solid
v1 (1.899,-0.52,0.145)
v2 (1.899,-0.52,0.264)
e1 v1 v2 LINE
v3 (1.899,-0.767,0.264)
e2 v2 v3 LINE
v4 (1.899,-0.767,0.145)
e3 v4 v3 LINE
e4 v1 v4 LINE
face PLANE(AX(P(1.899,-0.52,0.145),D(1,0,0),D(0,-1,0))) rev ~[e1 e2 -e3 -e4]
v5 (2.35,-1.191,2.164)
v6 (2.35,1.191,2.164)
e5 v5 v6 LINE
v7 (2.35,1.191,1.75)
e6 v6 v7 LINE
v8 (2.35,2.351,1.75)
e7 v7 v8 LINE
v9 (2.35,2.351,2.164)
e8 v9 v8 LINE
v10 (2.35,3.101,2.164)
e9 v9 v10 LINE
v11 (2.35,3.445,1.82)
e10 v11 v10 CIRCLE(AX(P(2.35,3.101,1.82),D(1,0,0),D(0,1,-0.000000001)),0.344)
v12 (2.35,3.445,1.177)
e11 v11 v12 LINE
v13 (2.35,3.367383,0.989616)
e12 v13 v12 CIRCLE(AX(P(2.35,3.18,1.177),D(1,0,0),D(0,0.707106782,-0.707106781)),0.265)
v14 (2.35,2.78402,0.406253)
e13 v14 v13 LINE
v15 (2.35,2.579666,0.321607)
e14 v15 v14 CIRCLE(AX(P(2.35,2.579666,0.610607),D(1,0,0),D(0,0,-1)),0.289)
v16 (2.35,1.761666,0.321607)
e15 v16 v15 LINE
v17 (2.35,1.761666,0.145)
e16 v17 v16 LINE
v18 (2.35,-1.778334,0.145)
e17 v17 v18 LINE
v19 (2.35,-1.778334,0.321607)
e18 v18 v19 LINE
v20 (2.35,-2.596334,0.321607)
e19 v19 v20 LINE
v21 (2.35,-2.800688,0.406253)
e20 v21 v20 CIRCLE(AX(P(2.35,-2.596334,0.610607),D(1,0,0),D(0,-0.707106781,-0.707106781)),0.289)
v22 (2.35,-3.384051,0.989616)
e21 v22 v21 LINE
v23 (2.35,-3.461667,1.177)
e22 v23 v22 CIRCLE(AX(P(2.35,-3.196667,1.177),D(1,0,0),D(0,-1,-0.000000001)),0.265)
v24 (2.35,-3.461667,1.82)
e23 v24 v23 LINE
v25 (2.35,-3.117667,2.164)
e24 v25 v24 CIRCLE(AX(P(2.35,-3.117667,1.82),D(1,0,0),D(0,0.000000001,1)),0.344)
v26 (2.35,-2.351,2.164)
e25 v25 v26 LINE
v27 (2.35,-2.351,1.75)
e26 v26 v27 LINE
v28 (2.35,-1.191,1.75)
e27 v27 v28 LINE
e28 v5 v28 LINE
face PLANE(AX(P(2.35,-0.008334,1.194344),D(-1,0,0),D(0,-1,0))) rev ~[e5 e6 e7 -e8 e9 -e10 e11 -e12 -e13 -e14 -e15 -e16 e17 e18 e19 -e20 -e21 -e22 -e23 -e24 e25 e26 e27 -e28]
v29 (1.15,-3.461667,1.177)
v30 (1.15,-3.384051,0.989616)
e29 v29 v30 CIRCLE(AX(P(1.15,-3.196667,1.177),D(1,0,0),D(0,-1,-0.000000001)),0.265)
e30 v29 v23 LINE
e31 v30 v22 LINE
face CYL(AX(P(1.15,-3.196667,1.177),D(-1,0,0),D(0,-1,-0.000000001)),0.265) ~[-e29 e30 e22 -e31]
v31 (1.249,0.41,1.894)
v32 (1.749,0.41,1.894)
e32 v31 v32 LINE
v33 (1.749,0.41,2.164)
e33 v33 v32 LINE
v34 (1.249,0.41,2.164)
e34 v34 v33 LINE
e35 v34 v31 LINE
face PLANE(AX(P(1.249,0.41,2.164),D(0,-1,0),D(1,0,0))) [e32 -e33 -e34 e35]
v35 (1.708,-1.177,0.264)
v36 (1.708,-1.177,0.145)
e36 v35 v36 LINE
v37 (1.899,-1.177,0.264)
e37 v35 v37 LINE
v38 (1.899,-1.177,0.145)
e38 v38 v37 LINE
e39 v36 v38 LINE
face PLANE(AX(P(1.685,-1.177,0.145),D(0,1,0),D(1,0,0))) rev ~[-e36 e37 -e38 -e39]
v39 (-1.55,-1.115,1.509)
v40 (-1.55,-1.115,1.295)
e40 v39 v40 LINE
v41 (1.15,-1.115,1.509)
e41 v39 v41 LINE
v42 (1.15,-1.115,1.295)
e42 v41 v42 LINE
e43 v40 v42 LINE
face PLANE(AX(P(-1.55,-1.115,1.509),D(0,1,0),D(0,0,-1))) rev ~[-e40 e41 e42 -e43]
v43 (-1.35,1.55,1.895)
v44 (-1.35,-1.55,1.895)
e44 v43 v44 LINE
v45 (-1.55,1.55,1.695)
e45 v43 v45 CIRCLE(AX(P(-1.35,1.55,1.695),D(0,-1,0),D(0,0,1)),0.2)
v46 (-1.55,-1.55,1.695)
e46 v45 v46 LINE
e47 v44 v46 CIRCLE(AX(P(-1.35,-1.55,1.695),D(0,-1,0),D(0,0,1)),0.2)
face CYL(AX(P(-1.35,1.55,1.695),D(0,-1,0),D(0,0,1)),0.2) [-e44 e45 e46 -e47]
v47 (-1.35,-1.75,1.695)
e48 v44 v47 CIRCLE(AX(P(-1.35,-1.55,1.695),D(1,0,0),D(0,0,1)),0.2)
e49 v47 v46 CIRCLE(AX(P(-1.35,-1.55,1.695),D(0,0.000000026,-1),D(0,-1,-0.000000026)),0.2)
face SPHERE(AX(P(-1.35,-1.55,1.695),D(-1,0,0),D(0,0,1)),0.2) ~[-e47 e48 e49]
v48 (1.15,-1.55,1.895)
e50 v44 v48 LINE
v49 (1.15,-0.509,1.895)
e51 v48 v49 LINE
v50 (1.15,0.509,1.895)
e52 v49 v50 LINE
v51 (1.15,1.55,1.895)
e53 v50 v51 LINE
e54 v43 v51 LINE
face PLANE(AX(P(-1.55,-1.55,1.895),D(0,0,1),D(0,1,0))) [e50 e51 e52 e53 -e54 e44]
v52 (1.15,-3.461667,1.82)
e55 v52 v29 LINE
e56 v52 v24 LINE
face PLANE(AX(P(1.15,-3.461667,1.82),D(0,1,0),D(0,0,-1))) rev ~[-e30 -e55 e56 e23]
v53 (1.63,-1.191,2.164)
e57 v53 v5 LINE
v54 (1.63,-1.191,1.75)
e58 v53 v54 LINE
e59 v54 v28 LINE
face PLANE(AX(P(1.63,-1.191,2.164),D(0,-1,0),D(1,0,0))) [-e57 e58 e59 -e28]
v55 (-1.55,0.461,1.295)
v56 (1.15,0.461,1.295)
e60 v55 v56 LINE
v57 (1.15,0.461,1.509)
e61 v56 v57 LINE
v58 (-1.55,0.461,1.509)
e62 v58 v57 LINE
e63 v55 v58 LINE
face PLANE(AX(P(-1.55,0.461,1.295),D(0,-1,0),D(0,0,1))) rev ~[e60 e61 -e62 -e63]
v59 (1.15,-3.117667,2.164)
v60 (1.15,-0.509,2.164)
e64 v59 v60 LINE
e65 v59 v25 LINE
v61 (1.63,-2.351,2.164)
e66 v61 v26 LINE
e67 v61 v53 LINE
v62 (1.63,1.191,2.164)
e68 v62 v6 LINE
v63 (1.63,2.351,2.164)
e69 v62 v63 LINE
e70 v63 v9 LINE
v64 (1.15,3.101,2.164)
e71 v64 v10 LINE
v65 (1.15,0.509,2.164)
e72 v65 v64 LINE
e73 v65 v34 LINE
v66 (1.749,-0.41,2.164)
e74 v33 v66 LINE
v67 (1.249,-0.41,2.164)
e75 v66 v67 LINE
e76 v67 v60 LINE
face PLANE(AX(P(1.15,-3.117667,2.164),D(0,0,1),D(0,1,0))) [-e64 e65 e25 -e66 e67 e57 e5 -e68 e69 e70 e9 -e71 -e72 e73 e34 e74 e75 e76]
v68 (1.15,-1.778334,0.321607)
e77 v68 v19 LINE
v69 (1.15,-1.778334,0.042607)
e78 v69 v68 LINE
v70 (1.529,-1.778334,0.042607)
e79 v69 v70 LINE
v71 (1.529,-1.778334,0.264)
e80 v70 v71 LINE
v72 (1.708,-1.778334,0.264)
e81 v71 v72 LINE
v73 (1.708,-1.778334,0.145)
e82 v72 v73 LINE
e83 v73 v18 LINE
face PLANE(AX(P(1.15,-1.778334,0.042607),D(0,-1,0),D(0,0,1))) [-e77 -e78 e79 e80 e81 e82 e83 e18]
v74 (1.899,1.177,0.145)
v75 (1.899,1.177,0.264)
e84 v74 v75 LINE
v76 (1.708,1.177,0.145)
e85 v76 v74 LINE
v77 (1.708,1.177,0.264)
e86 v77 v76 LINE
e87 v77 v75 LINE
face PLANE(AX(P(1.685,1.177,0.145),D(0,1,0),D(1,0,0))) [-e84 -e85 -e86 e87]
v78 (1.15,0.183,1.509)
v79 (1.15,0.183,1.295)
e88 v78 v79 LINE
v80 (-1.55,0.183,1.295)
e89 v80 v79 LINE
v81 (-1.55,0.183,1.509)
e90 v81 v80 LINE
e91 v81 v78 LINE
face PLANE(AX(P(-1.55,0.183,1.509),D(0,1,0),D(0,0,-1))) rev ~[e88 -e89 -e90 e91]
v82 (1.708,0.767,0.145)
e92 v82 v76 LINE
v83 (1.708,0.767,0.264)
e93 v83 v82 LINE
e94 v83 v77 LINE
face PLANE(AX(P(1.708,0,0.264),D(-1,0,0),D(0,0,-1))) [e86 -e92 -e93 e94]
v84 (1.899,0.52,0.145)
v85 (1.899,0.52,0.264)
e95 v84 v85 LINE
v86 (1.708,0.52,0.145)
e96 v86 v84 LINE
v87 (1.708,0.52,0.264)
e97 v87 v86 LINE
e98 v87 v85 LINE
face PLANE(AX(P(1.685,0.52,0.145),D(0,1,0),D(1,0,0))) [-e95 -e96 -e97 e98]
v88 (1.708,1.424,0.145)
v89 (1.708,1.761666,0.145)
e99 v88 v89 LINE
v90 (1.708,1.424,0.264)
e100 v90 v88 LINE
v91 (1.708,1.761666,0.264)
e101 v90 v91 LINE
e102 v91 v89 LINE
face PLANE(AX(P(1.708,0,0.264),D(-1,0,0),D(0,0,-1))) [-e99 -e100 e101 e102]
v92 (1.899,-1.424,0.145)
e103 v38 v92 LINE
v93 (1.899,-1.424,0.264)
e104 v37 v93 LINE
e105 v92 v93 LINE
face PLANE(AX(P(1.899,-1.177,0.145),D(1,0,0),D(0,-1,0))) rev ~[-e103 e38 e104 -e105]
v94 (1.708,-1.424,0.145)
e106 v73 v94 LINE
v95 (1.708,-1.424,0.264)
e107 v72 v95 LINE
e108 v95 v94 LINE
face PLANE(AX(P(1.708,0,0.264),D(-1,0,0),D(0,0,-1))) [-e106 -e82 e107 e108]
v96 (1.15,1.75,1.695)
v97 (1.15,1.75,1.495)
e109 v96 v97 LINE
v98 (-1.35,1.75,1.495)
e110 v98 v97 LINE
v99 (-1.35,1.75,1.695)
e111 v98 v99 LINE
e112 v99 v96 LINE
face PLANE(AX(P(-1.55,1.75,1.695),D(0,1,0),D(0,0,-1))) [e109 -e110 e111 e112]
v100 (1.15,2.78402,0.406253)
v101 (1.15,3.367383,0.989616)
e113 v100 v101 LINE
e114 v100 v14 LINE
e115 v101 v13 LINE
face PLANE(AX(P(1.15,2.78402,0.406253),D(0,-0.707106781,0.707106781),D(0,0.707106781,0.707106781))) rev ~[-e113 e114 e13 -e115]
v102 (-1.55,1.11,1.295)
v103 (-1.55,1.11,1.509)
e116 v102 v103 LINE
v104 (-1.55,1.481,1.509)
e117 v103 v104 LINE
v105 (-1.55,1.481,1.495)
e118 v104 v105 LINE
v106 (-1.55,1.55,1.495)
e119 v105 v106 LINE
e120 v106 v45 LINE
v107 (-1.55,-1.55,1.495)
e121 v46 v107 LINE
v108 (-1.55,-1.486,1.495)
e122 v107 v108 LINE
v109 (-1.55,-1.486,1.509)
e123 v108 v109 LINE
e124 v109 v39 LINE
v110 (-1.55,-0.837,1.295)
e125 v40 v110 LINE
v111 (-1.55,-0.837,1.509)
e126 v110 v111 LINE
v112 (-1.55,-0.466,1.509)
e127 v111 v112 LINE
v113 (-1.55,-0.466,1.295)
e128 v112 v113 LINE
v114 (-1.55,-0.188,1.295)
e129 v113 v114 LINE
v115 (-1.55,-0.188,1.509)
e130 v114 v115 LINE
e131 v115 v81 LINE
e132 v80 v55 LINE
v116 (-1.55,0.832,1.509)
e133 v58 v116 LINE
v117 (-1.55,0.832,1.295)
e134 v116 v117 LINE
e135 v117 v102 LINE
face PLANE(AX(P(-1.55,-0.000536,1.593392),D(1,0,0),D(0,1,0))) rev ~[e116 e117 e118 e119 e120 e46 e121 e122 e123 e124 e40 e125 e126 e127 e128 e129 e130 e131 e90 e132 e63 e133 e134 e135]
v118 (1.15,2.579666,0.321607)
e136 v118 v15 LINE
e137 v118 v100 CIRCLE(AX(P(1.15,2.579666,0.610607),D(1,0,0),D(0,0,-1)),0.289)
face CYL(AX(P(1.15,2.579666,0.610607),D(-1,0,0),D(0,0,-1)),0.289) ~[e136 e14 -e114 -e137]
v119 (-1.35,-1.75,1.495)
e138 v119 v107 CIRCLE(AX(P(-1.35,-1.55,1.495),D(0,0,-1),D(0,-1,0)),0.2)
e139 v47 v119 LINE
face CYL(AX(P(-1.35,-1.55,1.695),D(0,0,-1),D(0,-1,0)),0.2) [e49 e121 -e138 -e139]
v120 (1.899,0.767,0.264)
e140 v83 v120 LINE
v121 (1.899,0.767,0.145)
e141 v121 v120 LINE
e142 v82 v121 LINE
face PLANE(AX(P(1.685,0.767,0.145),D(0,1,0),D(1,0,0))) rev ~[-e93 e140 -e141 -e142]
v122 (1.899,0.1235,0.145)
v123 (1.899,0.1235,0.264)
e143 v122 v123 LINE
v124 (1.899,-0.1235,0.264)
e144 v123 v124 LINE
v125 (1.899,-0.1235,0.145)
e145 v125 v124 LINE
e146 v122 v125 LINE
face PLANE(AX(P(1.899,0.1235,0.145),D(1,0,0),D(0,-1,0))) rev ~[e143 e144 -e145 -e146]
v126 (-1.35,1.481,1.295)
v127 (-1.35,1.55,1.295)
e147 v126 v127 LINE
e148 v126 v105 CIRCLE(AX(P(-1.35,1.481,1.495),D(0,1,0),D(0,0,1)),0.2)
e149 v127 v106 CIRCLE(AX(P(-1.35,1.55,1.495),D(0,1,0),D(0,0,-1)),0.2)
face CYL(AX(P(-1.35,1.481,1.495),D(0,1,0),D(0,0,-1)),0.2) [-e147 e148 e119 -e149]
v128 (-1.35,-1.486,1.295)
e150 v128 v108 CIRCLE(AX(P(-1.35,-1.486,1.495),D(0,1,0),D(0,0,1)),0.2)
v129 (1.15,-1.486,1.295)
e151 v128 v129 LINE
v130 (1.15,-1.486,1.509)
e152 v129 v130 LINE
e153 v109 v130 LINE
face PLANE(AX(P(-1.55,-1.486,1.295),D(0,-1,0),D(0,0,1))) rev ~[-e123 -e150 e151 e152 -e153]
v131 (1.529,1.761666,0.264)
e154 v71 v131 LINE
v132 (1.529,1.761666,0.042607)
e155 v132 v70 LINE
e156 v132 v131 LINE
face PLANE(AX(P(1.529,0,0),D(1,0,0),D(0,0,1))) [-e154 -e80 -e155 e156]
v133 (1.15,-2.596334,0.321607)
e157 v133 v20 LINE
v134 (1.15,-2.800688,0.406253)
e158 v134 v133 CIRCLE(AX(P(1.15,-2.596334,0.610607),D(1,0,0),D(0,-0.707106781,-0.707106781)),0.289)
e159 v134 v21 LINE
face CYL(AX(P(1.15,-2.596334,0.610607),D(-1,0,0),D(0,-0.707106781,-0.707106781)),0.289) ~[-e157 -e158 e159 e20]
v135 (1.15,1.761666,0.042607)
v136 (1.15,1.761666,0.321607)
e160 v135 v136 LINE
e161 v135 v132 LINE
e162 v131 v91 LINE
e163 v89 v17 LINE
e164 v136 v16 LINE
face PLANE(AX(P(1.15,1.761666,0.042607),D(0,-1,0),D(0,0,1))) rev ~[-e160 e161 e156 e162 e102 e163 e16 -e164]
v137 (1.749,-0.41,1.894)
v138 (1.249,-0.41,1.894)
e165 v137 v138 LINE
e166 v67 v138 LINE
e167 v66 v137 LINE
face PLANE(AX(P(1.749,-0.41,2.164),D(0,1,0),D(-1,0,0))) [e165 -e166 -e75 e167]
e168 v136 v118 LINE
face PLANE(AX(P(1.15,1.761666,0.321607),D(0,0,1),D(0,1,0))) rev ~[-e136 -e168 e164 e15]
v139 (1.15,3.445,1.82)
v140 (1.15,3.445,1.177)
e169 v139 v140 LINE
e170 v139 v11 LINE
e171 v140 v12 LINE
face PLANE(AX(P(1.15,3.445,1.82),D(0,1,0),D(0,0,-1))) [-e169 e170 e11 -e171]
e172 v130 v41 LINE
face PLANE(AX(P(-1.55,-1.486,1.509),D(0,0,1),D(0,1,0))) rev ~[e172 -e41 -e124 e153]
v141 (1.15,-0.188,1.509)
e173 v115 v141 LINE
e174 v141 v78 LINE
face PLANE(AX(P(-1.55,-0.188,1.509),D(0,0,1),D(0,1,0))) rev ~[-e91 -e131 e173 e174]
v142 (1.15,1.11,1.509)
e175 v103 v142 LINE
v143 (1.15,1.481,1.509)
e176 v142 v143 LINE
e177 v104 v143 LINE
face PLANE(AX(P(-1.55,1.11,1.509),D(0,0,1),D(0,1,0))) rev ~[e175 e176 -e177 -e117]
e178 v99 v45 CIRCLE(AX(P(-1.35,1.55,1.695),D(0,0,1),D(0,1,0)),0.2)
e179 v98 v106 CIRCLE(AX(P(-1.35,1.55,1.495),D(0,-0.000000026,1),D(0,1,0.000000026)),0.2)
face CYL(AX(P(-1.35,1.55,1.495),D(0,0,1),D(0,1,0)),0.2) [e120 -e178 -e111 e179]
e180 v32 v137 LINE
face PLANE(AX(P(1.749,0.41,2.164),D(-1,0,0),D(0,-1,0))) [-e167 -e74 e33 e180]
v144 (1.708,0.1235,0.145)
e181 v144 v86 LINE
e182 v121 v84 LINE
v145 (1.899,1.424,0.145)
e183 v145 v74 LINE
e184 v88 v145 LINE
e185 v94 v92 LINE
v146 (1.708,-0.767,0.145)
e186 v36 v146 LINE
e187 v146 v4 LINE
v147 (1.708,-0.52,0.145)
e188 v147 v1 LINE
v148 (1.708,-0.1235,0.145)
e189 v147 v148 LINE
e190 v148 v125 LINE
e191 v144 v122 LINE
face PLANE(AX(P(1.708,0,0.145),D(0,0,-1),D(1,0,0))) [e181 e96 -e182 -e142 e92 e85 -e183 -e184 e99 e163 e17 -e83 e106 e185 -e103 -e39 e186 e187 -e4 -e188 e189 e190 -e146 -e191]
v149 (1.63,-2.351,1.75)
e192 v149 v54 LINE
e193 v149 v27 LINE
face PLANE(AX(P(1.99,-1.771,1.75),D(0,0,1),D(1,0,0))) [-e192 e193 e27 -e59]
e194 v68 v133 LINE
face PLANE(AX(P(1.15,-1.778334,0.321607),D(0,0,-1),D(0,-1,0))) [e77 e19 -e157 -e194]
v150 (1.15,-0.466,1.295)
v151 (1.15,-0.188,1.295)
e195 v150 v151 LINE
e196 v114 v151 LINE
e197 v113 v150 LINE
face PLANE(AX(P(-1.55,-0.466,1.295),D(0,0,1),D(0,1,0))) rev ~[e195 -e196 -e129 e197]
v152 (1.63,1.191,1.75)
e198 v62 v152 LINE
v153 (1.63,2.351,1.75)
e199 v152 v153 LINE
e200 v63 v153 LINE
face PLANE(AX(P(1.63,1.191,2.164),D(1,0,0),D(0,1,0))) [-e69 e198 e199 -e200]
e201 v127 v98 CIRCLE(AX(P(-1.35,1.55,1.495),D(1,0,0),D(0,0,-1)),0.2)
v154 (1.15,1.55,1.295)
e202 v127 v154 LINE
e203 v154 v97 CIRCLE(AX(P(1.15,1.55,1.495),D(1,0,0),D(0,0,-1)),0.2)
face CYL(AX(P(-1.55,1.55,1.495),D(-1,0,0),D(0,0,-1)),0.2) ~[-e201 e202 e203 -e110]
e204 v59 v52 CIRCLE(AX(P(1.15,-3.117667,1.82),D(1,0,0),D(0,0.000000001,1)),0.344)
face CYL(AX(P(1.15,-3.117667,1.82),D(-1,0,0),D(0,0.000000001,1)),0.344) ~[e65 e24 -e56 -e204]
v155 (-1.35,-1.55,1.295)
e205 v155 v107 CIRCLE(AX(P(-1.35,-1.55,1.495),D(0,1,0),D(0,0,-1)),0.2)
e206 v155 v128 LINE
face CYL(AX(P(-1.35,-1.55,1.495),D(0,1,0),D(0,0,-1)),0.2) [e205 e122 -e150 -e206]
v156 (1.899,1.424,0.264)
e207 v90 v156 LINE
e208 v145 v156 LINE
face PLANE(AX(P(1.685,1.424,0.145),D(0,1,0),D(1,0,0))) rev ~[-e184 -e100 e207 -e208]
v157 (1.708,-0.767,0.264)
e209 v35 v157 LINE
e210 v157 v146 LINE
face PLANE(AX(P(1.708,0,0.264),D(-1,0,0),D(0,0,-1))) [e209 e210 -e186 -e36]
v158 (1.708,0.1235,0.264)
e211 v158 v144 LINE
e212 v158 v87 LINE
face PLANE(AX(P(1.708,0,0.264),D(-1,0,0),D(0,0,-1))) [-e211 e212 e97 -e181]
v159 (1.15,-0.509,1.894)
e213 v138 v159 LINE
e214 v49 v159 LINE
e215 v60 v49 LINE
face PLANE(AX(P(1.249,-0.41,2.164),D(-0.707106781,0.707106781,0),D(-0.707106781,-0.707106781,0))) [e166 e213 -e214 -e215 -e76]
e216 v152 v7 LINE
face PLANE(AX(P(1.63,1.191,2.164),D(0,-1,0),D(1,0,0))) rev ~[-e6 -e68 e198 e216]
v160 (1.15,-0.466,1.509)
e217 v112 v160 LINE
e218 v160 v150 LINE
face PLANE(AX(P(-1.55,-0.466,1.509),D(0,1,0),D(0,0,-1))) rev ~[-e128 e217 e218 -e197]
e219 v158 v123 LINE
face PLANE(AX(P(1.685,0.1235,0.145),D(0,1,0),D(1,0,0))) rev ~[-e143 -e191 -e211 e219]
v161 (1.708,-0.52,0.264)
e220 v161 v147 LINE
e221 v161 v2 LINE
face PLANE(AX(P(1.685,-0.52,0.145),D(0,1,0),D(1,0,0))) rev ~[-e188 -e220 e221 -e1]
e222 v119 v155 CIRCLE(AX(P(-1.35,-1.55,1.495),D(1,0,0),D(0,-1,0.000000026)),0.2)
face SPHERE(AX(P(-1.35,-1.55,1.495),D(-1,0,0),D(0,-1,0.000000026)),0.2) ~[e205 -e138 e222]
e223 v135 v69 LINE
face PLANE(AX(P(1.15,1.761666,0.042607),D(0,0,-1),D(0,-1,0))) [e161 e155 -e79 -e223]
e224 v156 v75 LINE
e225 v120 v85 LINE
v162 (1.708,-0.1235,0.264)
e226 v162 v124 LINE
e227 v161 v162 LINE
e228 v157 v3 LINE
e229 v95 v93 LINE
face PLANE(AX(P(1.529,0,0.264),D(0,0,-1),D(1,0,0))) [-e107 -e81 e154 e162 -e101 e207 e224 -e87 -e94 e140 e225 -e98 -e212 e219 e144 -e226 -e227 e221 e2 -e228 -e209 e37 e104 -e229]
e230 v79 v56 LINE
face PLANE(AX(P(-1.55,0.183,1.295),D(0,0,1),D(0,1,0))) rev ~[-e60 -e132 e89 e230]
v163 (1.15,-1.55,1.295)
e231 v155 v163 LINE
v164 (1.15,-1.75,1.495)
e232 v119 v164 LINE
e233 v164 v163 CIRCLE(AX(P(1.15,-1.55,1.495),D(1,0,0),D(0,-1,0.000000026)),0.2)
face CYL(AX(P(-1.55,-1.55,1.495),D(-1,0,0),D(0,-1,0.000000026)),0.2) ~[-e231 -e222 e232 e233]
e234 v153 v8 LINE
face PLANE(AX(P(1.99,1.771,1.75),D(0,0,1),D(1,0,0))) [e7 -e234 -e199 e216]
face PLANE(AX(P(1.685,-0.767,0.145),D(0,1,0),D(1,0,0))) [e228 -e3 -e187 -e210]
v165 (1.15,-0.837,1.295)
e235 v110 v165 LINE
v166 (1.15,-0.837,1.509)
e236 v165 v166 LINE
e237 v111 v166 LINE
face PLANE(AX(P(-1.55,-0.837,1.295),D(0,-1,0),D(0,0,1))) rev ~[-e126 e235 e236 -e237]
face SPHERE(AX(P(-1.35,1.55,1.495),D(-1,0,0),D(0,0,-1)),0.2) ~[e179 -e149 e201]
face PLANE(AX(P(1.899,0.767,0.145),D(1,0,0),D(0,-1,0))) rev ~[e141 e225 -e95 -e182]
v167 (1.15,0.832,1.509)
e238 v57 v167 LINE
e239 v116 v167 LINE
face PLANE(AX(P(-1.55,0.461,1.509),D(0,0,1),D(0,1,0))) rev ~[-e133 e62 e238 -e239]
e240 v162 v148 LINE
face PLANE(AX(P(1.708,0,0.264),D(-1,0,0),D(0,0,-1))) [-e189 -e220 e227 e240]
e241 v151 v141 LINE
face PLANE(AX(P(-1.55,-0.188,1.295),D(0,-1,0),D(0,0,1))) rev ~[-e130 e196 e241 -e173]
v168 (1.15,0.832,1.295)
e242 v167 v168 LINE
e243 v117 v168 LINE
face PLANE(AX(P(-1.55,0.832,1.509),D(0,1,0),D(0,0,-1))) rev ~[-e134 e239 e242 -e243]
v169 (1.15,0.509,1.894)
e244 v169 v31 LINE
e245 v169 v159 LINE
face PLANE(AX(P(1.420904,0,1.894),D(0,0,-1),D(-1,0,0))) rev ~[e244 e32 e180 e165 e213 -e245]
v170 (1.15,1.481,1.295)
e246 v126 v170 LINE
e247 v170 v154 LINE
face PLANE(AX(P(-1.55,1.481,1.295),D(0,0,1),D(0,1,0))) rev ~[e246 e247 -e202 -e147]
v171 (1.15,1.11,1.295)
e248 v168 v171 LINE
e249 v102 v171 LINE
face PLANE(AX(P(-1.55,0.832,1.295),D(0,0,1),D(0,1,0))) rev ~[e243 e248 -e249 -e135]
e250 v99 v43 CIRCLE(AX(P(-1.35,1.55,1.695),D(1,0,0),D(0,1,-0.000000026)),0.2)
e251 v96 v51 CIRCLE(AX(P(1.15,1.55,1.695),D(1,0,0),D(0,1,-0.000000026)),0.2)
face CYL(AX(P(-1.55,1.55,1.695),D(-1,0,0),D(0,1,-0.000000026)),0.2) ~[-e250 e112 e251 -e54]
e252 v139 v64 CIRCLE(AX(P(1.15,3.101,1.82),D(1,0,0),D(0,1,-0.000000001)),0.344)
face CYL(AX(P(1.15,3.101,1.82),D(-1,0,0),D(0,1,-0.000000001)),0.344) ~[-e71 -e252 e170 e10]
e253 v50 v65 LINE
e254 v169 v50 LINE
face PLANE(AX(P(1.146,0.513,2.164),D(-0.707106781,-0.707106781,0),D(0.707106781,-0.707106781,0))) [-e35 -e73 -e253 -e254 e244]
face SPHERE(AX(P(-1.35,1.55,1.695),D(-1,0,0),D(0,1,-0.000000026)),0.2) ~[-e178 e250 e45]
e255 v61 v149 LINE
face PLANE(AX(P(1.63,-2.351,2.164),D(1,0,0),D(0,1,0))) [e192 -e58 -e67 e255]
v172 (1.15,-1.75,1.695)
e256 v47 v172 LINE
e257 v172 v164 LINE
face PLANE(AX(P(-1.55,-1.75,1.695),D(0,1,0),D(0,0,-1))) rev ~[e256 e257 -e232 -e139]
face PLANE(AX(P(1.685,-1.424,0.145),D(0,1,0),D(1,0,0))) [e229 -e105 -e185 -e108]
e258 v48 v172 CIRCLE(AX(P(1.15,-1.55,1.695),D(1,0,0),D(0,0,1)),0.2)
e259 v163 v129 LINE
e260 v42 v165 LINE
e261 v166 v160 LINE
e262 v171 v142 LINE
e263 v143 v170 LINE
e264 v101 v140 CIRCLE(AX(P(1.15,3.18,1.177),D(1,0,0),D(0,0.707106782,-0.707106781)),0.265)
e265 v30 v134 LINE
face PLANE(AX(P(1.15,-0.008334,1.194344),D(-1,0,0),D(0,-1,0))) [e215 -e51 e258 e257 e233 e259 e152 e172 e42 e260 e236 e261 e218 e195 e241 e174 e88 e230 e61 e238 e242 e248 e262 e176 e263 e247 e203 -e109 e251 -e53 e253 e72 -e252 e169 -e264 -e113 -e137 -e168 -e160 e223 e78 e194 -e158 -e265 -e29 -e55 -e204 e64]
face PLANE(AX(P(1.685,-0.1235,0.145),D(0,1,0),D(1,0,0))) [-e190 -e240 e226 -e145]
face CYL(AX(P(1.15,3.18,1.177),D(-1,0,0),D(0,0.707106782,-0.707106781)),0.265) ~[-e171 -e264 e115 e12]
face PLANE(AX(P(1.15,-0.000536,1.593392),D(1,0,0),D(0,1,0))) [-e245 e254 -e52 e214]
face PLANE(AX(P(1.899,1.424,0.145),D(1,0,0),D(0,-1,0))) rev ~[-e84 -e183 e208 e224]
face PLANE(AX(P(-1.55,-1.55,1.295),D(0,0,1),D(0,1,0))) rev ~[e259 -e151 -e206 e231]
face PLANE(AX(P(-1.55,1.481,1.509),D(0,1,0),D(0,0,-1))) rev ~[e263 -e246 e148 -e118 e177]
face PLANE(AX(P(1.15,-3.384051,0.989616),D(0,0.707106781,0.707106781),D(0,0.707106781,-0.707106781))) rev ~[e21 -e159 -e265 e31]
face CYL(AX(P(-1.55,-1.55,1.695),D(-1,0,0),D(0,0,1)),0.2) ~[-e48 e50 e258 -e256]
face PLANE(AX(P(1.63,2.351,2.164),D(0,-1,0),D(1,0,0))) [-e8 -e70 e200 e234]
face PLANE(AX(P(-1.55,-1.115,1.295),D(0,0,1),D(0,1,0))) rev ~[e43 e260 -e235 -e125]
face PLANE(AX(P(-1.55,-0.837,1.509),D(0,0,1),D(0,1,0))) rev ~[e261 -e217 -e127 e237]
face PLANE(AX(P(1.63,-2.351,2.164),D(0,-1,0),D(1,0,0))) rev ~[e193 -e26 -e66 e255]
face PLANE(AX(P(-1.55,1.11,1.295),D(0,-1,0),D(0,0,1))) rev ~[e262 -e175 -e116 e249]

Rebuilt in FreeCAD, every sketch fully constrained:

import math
import FreeCAD as App
import Part
import Sketcher

V = App.Vector
Q = App.Units.Quantity


def edges_at(feature, points):
    """Names of the edges that pass closest to the given points."""
    edges = feature.Shape.Edges
    near = lambda p: min(range(len(edges)), key=lambda i: edges[i].distToShape(Part.Vertex(*p))[0])
    return sorted({f"Edge{near(p) + 1}" for p in points})

doc = App.newDocument("Part")
params = doc.addObject("Spreadsheet::Sheet", "Params")
for row, (alias, value) in enumerate([
    ("sketch1_width", "0.65 mm"),
    ("pad1_length", "3.6 mm"),
    ("sketch2_width", "3.54 mm"),
    ("pad2_length", "1.2 mm"),
    ("pocket1_length", "0.119 mm"),
    ("sketch4_width", "0.72 mm"),
    ("sketch4_height", "1.16 mm"),
    ("pocket2_length", "0.414 mm"),
    ("sketch5_width", "0.5 mm"),
    ("sketch5_height", "0.82 mm"),
    ("pocket3_length", "0.27 mm"),
    ("sketch6_radius", "0.2 mm"),
    ("sketch6_width", "3.1 mm"),
    ("sketch6_height", "0.2 mm"),
    ("pad3_length", "2.7 mm"),
    ("fillet_radius", "0.2 mm"),
], start=1):
    params.set(f"A{row}", alias)
    params.set(f"B{row}", "=" + value)
    params.setAlias(f"B{row}", alias)

body = doc.addObject("PartDesign::Body", "Body")

# Sketch on XZ plane
sketch1 = body.newObject("Sketcher::SketchObject", "Sketch")
sketch1.AttachmentSupport = (doc.getObject("XZ_Plane"), [""])
sketch1.MapMode = "FlatFace"
sketch1.addGeometry([
    Part.LineSegment(V(1.53, 0.26, 0), V(1.53, 0, 0)),  # 0
    Part.LineSegment(V(1.53, 0, 0), V(2.36, 0, 0)),  # 1
    Part.LineSegment(V(2.36, 0, 0), V(2.36, 0.14, 0)),  # 2
    Part.LineSegment(V(2.36, 0.14, 0), V(1.71, 0.14, 0)),  # 3
    Part.LineSegment(V(1.71, 0.14, 0), V(1.71, 0.26, 0)),  # 4
    Part.LineSegment(V(1.71, 0.26, 0), V(1.53, 0.26, 0)),  # 5
], False)
sketch1.addConstraint([
    Sketcher.Constraint("Coincident", 0, 2, 1, 1),
    Sketcher.Constraint("Coincident", 1, 2, 2, 1),
    Sketcher.Constraint("Coincident", 2, 2, 3, 1),
    Sketcher.Constraint("Coincident", 3, 2, 4, 1),
    Sketcher.Constraint("Coincident", 4, 2, 5, 1),
    Sketcher.Constraint("Coincident", 5, 2, 0, 1),
    Sketcher.Constraint("Vertical", 0),
    Sketcher.Constraint("Horizontal", 1),
    Sketcher.Constraint("Vertical", 2),
    Sketcher.Constraint("Horizontal", 3),
    Sketcher.Constraint("Vertical", 4),
    Sketcher.Constraint("Horizontal", 5),
    Sketcher.Constraint("PointOnObject", 0, 2, -1),
    Sketcher.Constraint("DistanceX", 3, 2, 3, 1, Q("0.65 mm")),
    Sketcher.Constraint("DistanceX", 1, 1, 1, 2, Q("0.829 mm")),
    Sketcher.Constraint("DistanceY", 0, 2, 0, 1, Q("0.264 mm")),
    Sketcher.Constraint("DistanceY", 2, 1, 2, 2, Q("0.145 mm")),
    Sketcher.Constraint("DistanceX", -1, 1, 0, 2, Q("1.529 mm")),
])
sketch1.setExpression("Constraints[13]", "Params.sketch1_width")
pad1 = body.newObject("PartDesign::Pad", "Pad")
pad1.Profile = sketch1
pad1.setExpression("Length", "Params.pad1_length")
pad1.Midplane = True
body2 = doc.addObject("PartDesign::Body", "Body001")

# Sketch on YZ plane
sketch2 = body2.newObject("Sketcher::SketchObject", "Sketch001")
sketch2.AttachmentSupport = (doc.getObject("YZ_Plane001"), [""])
sketch2.MapMode = "FlatFace"
sketch2.AttachmentOffset = App.Placement(V(0, 0, 1.15), App.Rotation())
sketch2.addGeometry([
    Part.LineSegment(V(3.1, 2.16, 0), V(-3.12, 2.16, 0)),  # 0
    Part.ArcOfCircle(Part.Circle(V(-3.12, 1.82, 0), V(0, 0, 1), 0.34), math.radians(90), math.radians(180)),  # 1
    Part.LineSegment(V(-3.46, 1.82, 0), V(-3.46, 1.18, 0)),  # 2
    Part.ArcOfCircle(Part.Circle(V(-3.2, 1.18, 0), V(0, 0, 1), 0.27), math.radians(180), math.radians(225)),  # 3
    Part.LineSegment(V(-3.38, 0.99, 0), V(-2.8, 0.41, 0)),  # 4
    Part.ArcOfCircle(Part.Circle(V(-2.6, 0.61, 0), V(0, 0, 1), 0.29), math.radians(-135), math.radians(-90)),  # 5
    Part.LineSegment(V(-2.6, 0.32, 0), V(-1.78, 0.32, 0)),  # 6
    Part.LineSegment(V(-1.78, 0.32, 0), V(-1.78, 0.04, 0)),  # 7
    Part.LineSegment(V(-1.78, 0.04, 0), V(1.76, 0.04, 0)),  # 8
    Part.LineSegment(V(1.76, 0.04, 0), V(1.76, 0.32, 0)),  # 9
    Part.LineSegment(V(1.76, 0.32, 0), V(2.58, 0.32, 0)),  # 10
    Part.ArcOfCircle(Part.Circle(V(2.58, 0.61, 0), V(0, 0, 1), 0.29), math.radians(-90), math.radians(-45)),  # 11
    Part.LineSegment(V(2.78, 0.41, 0), V(3.37, 0.99, 0)),  # 12
    Part.ArcOfCircle(Part.Circle(V(3.18, 1.18, 0), V(0, 0, 1), 0.27), math.radians(-45), math.radians(0)),  # 13
    Part.LineSegment(V(3.45, 1.18, 0), V(3.45, 1.82, 0)),  # 14
    Part.ArcOfCircle(Part.Circle(V(3.1, 1.82, 0), V(0, 0, 1), 0.34), math.radians(0), math.radians(90)),  # 15
], False)
sketch2.addConstraint([
    Sketcher.Constraint("Tangent", 0, 2, 1, 1),
    Sketcher.Constraint("Tangent", 1, 2, 2, 1),
    Sketcher.Constraint("Tangent", 2, 2, 3, 1),
    Sketcher.Constraint("Tangent", 3, 2, 4, 1),
    Sketcher.Constraint("Tangent", 4, 2, 5, 1),
    Sketcher.Constraint("Tangent", 5, 2, 6, 1),
    Sketcher.Constraint("Coincident", 6, 2, 7, 1),
    Sketcher.Constraint("Coincident", 7, 2, 8, 1),
    Sketcher.Constraint("Coincident", 8, 2, 9, 1),
    Sketcher.Constraint("Coincident", 9, 2, 10, 1),
    Sketcher.Constraint("Tangent", 10, 2, 11, 1),
    Sketcher.Constraint("Tangent", 11, 2, 12, 1),
    Sketcher.Constraint("Tangent", 12, 2, 13, 1),
    Sketcher.Constraint("Tangent", 13, 2, 14, 1),
    Sketcher.Constraint("Tangent", 14, 2, 15, 1),
    Sketcher.Constraint("Tangent", 15, 2, 0, 1),
    Sketcher.Constraint("Horizontal", 0),
    Sketcher.Constraint("Vertical", 2),
    Sketcher.Constraint("Horizontal", 6),
    Sketcher.Constraint("Vertical", 7),
    Sketcher.Constraint("Horizontal", 8),
    Sketcher.Constraint("Vertical", 9),
    Sketcher.Constraint("Horizontal", 10),
    Sketcher.Constraint("Vertical", 14),
    Sketcher.Constraint("Equal", 5, 11),
    Sketcher.Constraint("Equal", 3, 13),
    Sketcher.Constraint("Equal", 1, 15),
    Sketcher.Constraint("Perpendicular", 4, 12),
    Sketcher.Constraint("Horizontal", 5, 3, 11, 3),
    Sketcher.Constraint("Horizontal", 3, 3, 13, 3),
    Sketcher.Constraint("Horizontal", 4, 2, 11, 2),
    Sketcher.Constraint("Equal", 6, 10),
    Sketcher.Constraint("Radius", 1, Q("0.344 mm")),
    Sketcher.Constraint("Radius", 3, Q("0.265 mm")),
    Sketcher.Constraint("Radius", 5, Q("0.289 mm")),
    Sketcher.Constraint("DistanceX", 8, 1, 8, 2, Q("3.54 mm")),
    Sketcher.Constraint("DistanceX", 6, 1, 6, 2, Q("0.818 mm")),
    Sketcher.Constraint("DistanceY", 2, 2, 2, 1, Q("0.643 mm")),
    Sketcher.Constraint("DistanceY", 7, 2, 7, 1, Q("0.279 mm")),
    Sketcher.Constraint("DistanceY", -1, 1, 1, 3, Q("1.82 mm")),
    Sketcher.Constraint("DistanceX", -1, 1, 13, 3, Q("3.18 mm")),
    Sketcher.Constraint("Distance", 4, Q("0.825 mm")),
])
sketch2.setExpression("Constraints[35]", "Params.sketch2_width")
pad2 = body2.newObject("PartDesign::Pad", "Pad001")
pad2.Profile = sketch2
pad2.setExpression("Length", "Params.pad2_length")
doc.recompute()

boolean = body2.newObject("PartDesign::Boolean", "Boolean")
boolean.Type = "Cut"
boolean.addObjects([body])

# Sketch on XY plane
sketch3 = body2.newObject("Sketcher::SketchObject", "Sketch002")
sketch3.AttachmentSupport = (doc.getObject("XY_Plane001"), [""])
sketch3.MapMode = "FlatFace"
sketch3.AttachmentOffset = App.Placement(V(0, 0, 0.145), App.Rotation())
sketch3.addGeometry([
    Part.LineSegment(V(1.69, 1.18, 0), V(1.69, 1.42, 0)),  # 0
    Part.LineSegment(V(1.69, 1.42, 0), V(1.9, 1.42, 0)),  # 1
    Part.LineSegment(V(1.9, 1.42, 0), V(1.9, 1.18, 0)),  # 2
    Part.LineSegment(V(1.9, 1.18, 0), V(1.69, 1.18, 0)),  # 3
    Part.LineSegment(V(1.69, 0.52, 0), V(1.69, 0.77, 0)),  # 4
    Part.LineSegment(V(1.69, 0.77, 0), V(1.9, 0.77, 0)),  # 5
    Part.LineSegment(V(1.9, 0.77, 0), V(1.9, 0.52, 0)),  # 6
    Part.LineSegment(V(1.9, 0.52, 0), V(1.69, 0.52, 0)),  # 7
    Part.LineSegment(V(1.69, -0.12, 0), V(1.69, 0.12, 0)),  # 8
    Part.LineSegment(V(1.69, 0.12, 0), V(1.9, 0.12, 0)),  # 9
    Part.LineSegment(V(1.9, 0.12, 0), V(1.9, -0.12, 0)),  # 10
    Part.LineSegment(V(1.9, -0.12, 0), V(1.69, -0.12, 0)),  # 11
    Part.LineSegment(V(1.69, -0.77, 0), V(1.69, -0.52, 0)),  # 12
    Part.LineSegment(V(1.69, -0.52, 0), V(1.9, -0.52, 0)),  # 13
    Part.LineSegment(V(1.9, -0.52, 0), V(1.9, -0.77, 0)),  # 14
    Part.LineSegment(V(1.9, -0.77, 0), V(1.69, -0.77, 0)),  # 15
    Part.LineSegment(V(1.69, -1.42, 0), V(1.69, -1.18, 0)),  # 16
    Part.LineSegment(V(1.69, -1.18, 0), V(1.9, -1.18, 0)),  # 17
    Part.LineSegment(V(1.9, -1.18, 0), V(1.9, -1.42, 0)),  # 18
    Part.LineSegment(V(1.9, -1.42, 0), V(1.69, -1.42, 0)),  # 19
], False)
sketch3.addConstraint([
    Sketcher.Constraint("Coincident", 0, 2, 1, 1),
    Sketcher.Constraint("Coincident", 1, 2, 2, 1),
    Sketcher.Constraint("Coincident", 2, 2, 3, 1),
    Sketcher.Constraint("Coincident", 3, 2, 0, 1),
    Sketcher.Constraint("Coincident", 4, 2, 5, 1),
    Sketcher.Constraint("Coincident", 5, 2, 6, 1),
    Sketcher.Constraint("Coincident", 6, 2, 7, 1),
    Sketcher.Constraint("Coincident", 7, 2, 4, 1),
    Sketcher.Constraint("Coincident", 8, 2, 9, 1),
    Sketcher.Constraint("Coincident", 9, 2, 10, 1),
    Sketcher.Constraint("Coincident", 10, 2, 11, 1),
    Sketcher.Constraint("Coincident", 11, 2, 8, 1),
    Sketcher.Constraint("Coincident", 12, 2, 13, 1),
    Sketcher.Constraint("Coincident", 13, 2, 14, 1),
    Sketcher.Constraint("Coincident", 14, 2, 15, 1),
    Sketcher.Constraint("Coincident", 15, 2, 12, 1),
    Sketcher.Constraint("Coincident", 16, 2, 17, 1),
    Sketcher.Constraint("Coincident", 17, 2, 18, 1),
    Sketcher.Constraint("Coincident", 18, 2, 19, 1),
    Sketcher.Constraint("Coincident", 19, 2, 16, 1),
    Sketcher.Constraint("Vertical", 0),
    Sketcher.Constraint("Horizontal", 1),
    Sketcher.Constraint("Vertical", 2),
    Sketcher.Constraint("Horizontal", 3),
    Sketcher.Constraint("Vertical", 4),
    Sketcher.Constraint("Horizontal", 5),
    Sketcher.Constraint("Vertical", 6),
    Sketcher.Constraint("Horizontal", 7),
    Sketcher.Constraint("Vertical", 8),
    Sketcher.Constraint("Horizontal", 9),
    Sketcher.Constraint("Vertical", 10),
    Sketcher.Constraint("Horizontal", 11),
    Sketcher.Constraint("Vertical", 12),
    Sketcher.Constraint("Horizontal", 13),
    Sketcher.Constraint("Vertical", 14),
    Sketcher.Constraint("Horizontal", 15),
    Sketcher.Constraint("Vertical", 16),
    Sketcher.Constraint("Horizontal", 17),
    Sketcher.Constraint("Vertical", 18),
    Sketcher.Constraint("Horizontal", 19),
    Sketcher.Constraint("Symmetric", 7, 2, 12, 2, -1),
    Sketcher.Constraint("Symmetric", 5, 2, 14, 2, -1),
    Sketcher.Constraint("Symmetric", 3, 2, 16, 2, -1),
    Sketcher.Constraint("Symmetric", 1, 2, 18, 2, -1),
    Sketcher.Constraint("Vertical", 3, 2, 4, 2),
    Sketcher.Constraint("Vertical", 2, 2, 5, 2),
    Sketcher.Constraint("Vertical", 7, 2, 8, 2),
    Sketcher.Constraint("Vertical", 6, 2, 9, 2),
    Sketcher.Constraint("Equal", 2, 4),
    Sketcher.Constraint("Equal", 6, 8),
    Sketcher.Constraint("DistanceX", 1, 1, 1, 2, Q("0.214 mm")),
    Sketcher.Constraint("DistanceY", 0, 1, 0, 2, Q("0.247 mm")),
    Sketcher.Constraint("DistanceY", -1, 1, 6, 2, Q("0.52 mm")),
    Sketcher.Constraint("DistanceY", 4, 2, 3, 2, Q("0.41 mm")),
    Sketcher.Constraint("DistanceX", -1, 1, 0, 2, Q("1.685 mm")),
    Sketcher.Constraint("DistanceY", -1, 1, 8, 2, Q("0.1235 mm")),
])
pocket1 = body2.newObject("PartDesign::Pocket", "Pocket")
pocket1.Profile = sketch3
pocket1.setExpression("Length", "Params.pocket1_length")
pocket1.Reversed = True

# Sketch on XY plane
sketch4 = body2.newObject("Sketcher::SketchObject", "Sketch003")
sketch4.AttachmentSupport = (doc.getObject("XY_Plane001"), [""])
sketch4.MapMode = "FlatFace"
sketch4.AttachmentOffset = App.Placement(V(0, 0, 2.164), App.Rotation())
sketch4.addGeometry([
    Part.LineSegment(V(1.6, -1.2, 0), V(1.6, -2.4, 0)),  # 0
    Part.LineSegment(V(1.6, -2.4, 0), V(2.3, -2.4, 0)),  # 1
    Part.LineSegment(V(2.3, -2.4, 0), V(2.3, -1.2, 0)),  # 2
    Part.LineSegment(V(2.3, -1.2, 0), V(1.6, -1.2, 0)),  # 3
    Part.LineSegment(V(1.6, 2.4, 0), V(1.6, 1.2, 0)),  # 4
    Part.LineSegment(V(1.6, 1.2, 0), V(2.3, 1.2, 0)),  # 5
    Part.LineSegment(V(2.3, 1.2, 0), V(2.3, 2.4, 0)),  # 6
    Part.LineSegment(V(2.3, 2.4, 0), V(1.6, 2.4, 0)),  # 7
], False)
sketch4.addConstraint([
    Sketcher.Constraint("Coincident", 0, 2, 1, 1),
    Sketcher.Constraint("Coincident", 1, 2, 2, 1),
    Sketcher.Constraint("Coincident", 2, 2, 3, 1),
    Sketcher.Constraint("Coincident", 3, 2, 0, 1),
    Sketcher.Constraint("Coincident", 4, 2, 5, 1),
    Sketcher.Constraint("Coincident", 5, 2, 6, 1),
    Sketcher.Constraint("Coincident", 6, 2, 7, 1),
    Sketcher.Constraint("Coincident", 7, 2, 4, 1),
    Sketcher.Constraint("Vertical", 0),
    Sketcher.Constraint("Horizontal", 1),
    Sketcher.Constraint("Vertical", 2),
    Sketcher.Constraint("Horizontal", 3),
    Sketcher.Constraint("Vertical", 4),
    Sketcher.Constraint("Horizontal", 5),
    Sketcher.Constraint("Vertical", 6),
    Sketcher.Constraint("Horizontal", 7),
    Sketcher.Constraint("Symmetric", 3, 2, 4, 2, -1),
    Sketcher.Constraint("Symmetric", 1, 2, 6, 2, -1),
    Sketcher.Constraint("DistanceX", 1, 1, 1, 2, Q("0.72 mm")),
    Sketcher.Constraint("DistanceY", 0, 2, 0, 1, Q("1.16 mm")),
    Sketcher.Constraint("DistanceX", -1, 1, 0, 2, Q("1.63 mm")),
    Sketcher.Constraint("DistanceY", 0, 2, -1, 1, Q("2.351 mm")),
])
sketch4.setExpression("Constraints[18]", "Params.sketch4_width")
sketch4.setExpression("Constraints[19]", "Params.sketch4_height")
pocket2 = body2.newObject("PartDesign::Pocket", "Pocket001")
pocket2.Profile = sketch4
pocket2.setExpression("Length", "Params.pocket2_length")

# Sketch on XY plane
sketch5 = body2.newObject("Sketcher::SketchObject", "Sketch004")
sketch5.AttachmentSupport = (doc.getObject("XY_Plane001"), [""])
sketch5.MapMode = "FlatFace"
sketch5.AttachmentOffset = App.Placement(V(0, 0, 2.164), App.Rotation())
sketch5.addGeometry([
    Part.LineSegment(V(1.75, 0.41, 0), V(1.25, 0.41, 0)),  # 0
    Part.LineSegment(V(1.25, 0.41, 0), V(1.15, 0.51, 0)),  # 1
    Part.LineSegment(V(1.15, 0.51, 0), V(1.15, -0.51, 0)),  # 2
    Part.LineSegment(V(1.15, -0.51, 0), V(1.25, -0.41, 0)),  # 3
    Part.LineSegment(V(1.25, -0.41, 0), V(1.75, -0.41, 0)),  # 4
    Part.LineSegment(V(1.75, -0.41, 0), V(1.75, 0.41, 0)),  # 5
], False)
sketch5.addConstraint([
    Sketcher.Constraint("Coincident", 0, 2, 1, 1),
    Sketcher.Constraint("Coincident", 1, 2, 2, 1),
    Sketcher.Constraint("Coincident", 2, 2, 3, 1),
    Sketcher.Constraint("Coincident", 3, 2, 4, 1),
    Sketcher.Constraint("Coincident", 4, 2, 5, 1),
    Sketcher.Constraint("Coincident", 5, 2, 0, 1),
    Sketcher.Constraint("Horizontal", 0),
    Sketcher.Constraint("Vertical", 2),
    Sketcher.Constraint("Horizontal", 4),
    Sketcher.Constraint("Vertical", 5),
    Sketcher.Constraint("Symmetric", 0, 2, 3, 2, -1),
    Sketcher.Constraint("Perpendicular", 1, 3),
    Sketcher.Constraint("Equal", 1, 3),
    Sketcher.Constraint("DistanceX", 0, 2, 0, 1, Q("0.5 mm")),
    Sketcher.Constraint("DistanceY", 5, 1, 5, 2, Q("0.82 mm")),
    Sketcher.Constraint("DistanceY", 2, 2, 2, 1, Q("1.026 mm")),
    Sketcher.Constraint("DistanceX", -1, 1, 0, 2, Q("1.249 mm")),
])
sketch5.setExpression("Constraints[13]", "Params.sketch5_width")
sketch5.setExpression("Constraints[14]", "Params.sketch5_height")
pocket3 = body2.newObject("PartDesign::Pocket", "Pocket002")
pocket3.Profile = sketch5
pocket3.setExpression("Length", "Params.pocket3_length")
body3 = doc.addObject("PartDesign::Body", "Body002")

# Sketch on YZ plane
sketch6 = body3.newObject("Sketcher::SketchObject", "Sketch005")
sketch6.AttachmentSupport = (doc.getObject("YZ_Plane002"), [""])
sketch6.MapMode = "FlatFace"
sketch6.AttachmentOffset = App.Placement(V(0, 0, -1.55), App.Rotation())
sketch6.addGeometry([
    Part.LineSegment(V(-1.75, 1.69, 0), V(-1.75, 1.49, 0)),  # 0
    Part.ArcOfCircle(Part.Circle(V(-1.55, 1.49, 0), V(0, 0, 1), 0.2), math.radians(180), math.radians(270)),  # 1
    Part.LineSegment(V(-1.55, 1.29, 0), V(-1.49, 1.29, 0)),  # 2
    Part.LineSegment(V(-1.49, 1.29, 0), V(-1.49, 1.51, 0)),  # 3
    Part.LineSegment(V(-1.49, 1.51, 0), V(-1.11, 1.51, 0)),  # 4
    Part.LineSegment(V(-1.11, 1.51, 0), V(-1.11, 1.29, 0)),  # 5
    Part.LineSegment(V(-1.11, 1.29, 0), V(-0.84, 1.29, 0)),  # 6
    Part.LineSegment(V(-0.84, 1.29, 0), V(-0.84, 1.51, 0)),  # 7
    Part.LineSegment(V(-0.84, 1.51, 0), V(-0.47, 1.51, 0)),  # 8
    Part.LineSegment(V(-0.47, 1.51, 0), V(-0.47, 1.29, 0)),  # 9
    Part.LineSegment(V(-0.47, 1.29, 0), V(-0.19, 1.29, 0)),  # 10
    Part.LineSegment(V(-0.19, 1.29, 0), V(-0.19, 1.51, 0)),  # 11
    Part.LineSegment(V(-0.19, 1.51, 0), V(0.18, 1.51, 0)),  # 12
    Part.LineSegment(V(0.18, 1.51, 0), V(0.18, 1.29, 0)),  # 13
    Part.LineSegment(V(0.18, 1.29, 0), V(0.46, 1.29, 0)),  # 14
    Part.LineSegment(V(0.46, 1.29, 0), V(0.46, 1.51, 0)),  # 15
    Part.LineSegment(V(0.46, 1.51, 0), V(0.83, 1.51, 0)),  # 16
    Part.LineSegment(V(0.83, 1.51, 0), V(0.83, 1.29, 0)),  # 17
    Part.LineSegment(V(0.83, 1.29, 0), V(1.11, 1.29, 0)),  # 18
    Part.LineSegment(V(1.11, 1.29, 0), V(1.11, 1.51, 0)),  # 19
    Part.LineSegment(V(1.11, 1.51, 0), V(1.48, 1.51, 0)),  # 20
    Part.LineSegment(V(1.48, 1.51, 0), V(1.48, 1.29, 0)),  # 21
    Part.LineSegment(V(1.48, 1.29, 0), V(1.55, 1.29, 0)),  # 22
    Part.ArcOfCircle(Part.Circle(V(1.55, 1.49, 0), V(0, 0, 1), 0.2), math.radians(-90), math.radians(0)),  # 23
    Part.LineSegment(V(1.75, 1.49, 0), V(1.75, 1.69, 0)),  # 24
    Part.ArcOfCircle(Part.Circle(V(1.55, 1.69, 0), V(0, 0, 1), 0.2), math.radians(0), math.radians(90)),  # 25
    Part.LineSegment(V(1.55, 1.89, 0), V(-1.55, 1.89, 0)),  # 26
    Part.ArcOfCircle(Part.Circle(V(-1.55, 1.69, 0), V(0, 0, 1), 0.2), math.radians(90), math.radians(180)),  # 27
], False)
sketch6.addConstraint([
    Sketcher.Constraint("Tangent", 0, 2, 1, 1),
    Sketcher.Constraint("Tangent", 1, 2, 2, 1),
    Sketcher.Constraint("Coincident", 2, 2, 3, 1),
    Sketcher.Constraint("Coincident", 3, 2, 4, 1),
    Sketcher.Constraint("Coincident", 4, 2, 5, 1),
    Sketcher.Constraint("Coincident", 5, 2, 6, 1),
    Sketcher.Constraint("Coincident", 6, 2, 7, 1),
    Sketcher.Constraint("Coincident", 7, 2, 8, 1),
    Sketcher.Constraint("Coincident", 8, 2, 9, 1),
    Sketcher.Constraint("Coincident", 9, 2, 10, 1),
    Sketcher.Constraint("Coincident", 10, 2, 11, 1),
    Sketcher.Constraint("Coincident", 11, 2, 12, 1),
    Sketcher.Constraint("Coincident", 12, 2, 13, 1),
    Sketcher.Constraint("Coincident", 13, 2, 14, 1),
    Sketcher.Constraint("Coincident", 14, 2, 15, 1),
    Sketcher.Constraint("Coincident", 15, 2, 16, 1),
    Sketcher.Constraint("Coincident", 16, 2, 17, 1),
    Sketcher.Constraint("Coincident", 17, 2, 18, 1),
    Sketcher.Constraint("Coincident", 18, 2, 19, 1),
    Sketcher.Constraint("Coincident", 19, 2, 20, 1),
    Sketcher.Constraint("Coincident", 20, 2, 21, 1),
    Sketcher.Constraint("Coincident", 21, 2, 22, 1),
    Sketcher.Constraint("Tangent", 22, 2, 23, 1),
    Sketcher.Constraint("Tangent", 23, 2, 24, 1),
    Sketcher.Constraint("Tangent", 24, 2, 25, 1),
    Sketcher.Constraint("Tangent", 25, 2, 26, 1),
    Sketcher.Constraint("Tangent", 26, 2, 27, 1),
    Sketcher.Constraint("Tangent", 27, 2, 0, 1),
    Sketcher.Constraint("Vertical", 0),
    Sketcher.Constraint("Horizontal", 2),
    Sketcher.Constraint("Vertical", 3),
    Sketcher.Constraint("Horizontal", 4),
    Sketcher.Constraint("Vertical", 5),
    Sketcher.Constraint("Horizontal", 6),
    Sketcher.Constraint("Vertical", 7),
    Sketcher.Constraint("Horizontal", 8),
    Sketcher.Constraint("Vertical", 9),
    Sketcher.Constraint("Horizontal", 10),
    Sketcher.Constraint("Vertical", 11),
    Sketcher.Constraint("Horizontal", 12),
    Sketcher.Constraint("Vertical", 13),
    Sketcher.Constraint("Horizontal", 14),
    Sketcher.Constraint("Vertical", 15),
    Sketcher.Constraint("Horizontal", 16),
    Sketcher.Constraint("Vertical", 17),
    Sketcher.Constraint("Horizontal", 18),
    Sketcher.Constraint("Vertical", 19),
    Sketcher.Constraint("Horizontal", 20),
    Sketcher.Constraint("Vertical", 21),
    Sketcher.Constraint("Horizontal", 22),
    Sketcher.Constraint("Vertical", 24),
    Sketcher.Constraint("Horizontal", 26),
    Sketcher.Constraint("Equal", 1, 23),
    Sketcher.Constraint("Equal", 23, 25),
    Sketcher.Constraint("Equal", 25, 27),
    Sketcher.Constraint("Symmetric", 1, 3, 23, 3, -2),
    Sketcher.Constraint("Horizontal", 2, 2, 5, 2),
    Sketcher.Constraint("Horizontal", 4, 2, 7, 2),
    Sketcher.Constraint("Horizontal", 6, 2, 9, 2),
    Sketcher.Constraint("Horizontal", 8, 2, 11, 2),
    Sketcher.Constraint("Horizontal", 10, 2, 13, 2),
    Sketcher.Constraint("Horizontal", 12, 2, 15, 2),
    Sketcher.Constraint("Horizontal", 14, 2, 17, 2),
    Sketcher.Constraint("Horizontal", 16, 2, 19, 2),
    Sketcher.Constraint("Equal", 4, 8),
    Sketcher.Constraint("Equal", 6, 10),
    Sketcher.Constraint("Equal", 8, 12),
    Sketcher.Constraint("Equal", 10, 14),
    Sketcher.Constraint("Equal", 12, 16),
    Sketcher.Constraint("Equal", 14, 18),
    Sketcher.Constraint("Equal", 16, 20),
    Sketcher.Constraint("Radius", 1, Q("0.2 mm")),
    Sketcher.Constraint("DistanceX", 26, 2, 26, 1, Q("3.1 mm")),
    Sketcher.Constraint("DistanceY", 0, 2, 0, 1, Q("0.2 mm")),
    Sketcher.Constraint("DistanceX", 2, 1, 2, 2, Q("0.064 mm")),
    Sketcher.Constraint("DistanceX", 4, 1, 4, 2, Q("0.371 mm")),
    Sketcher.Constraint("DistanceX", 6, 1, 6, 2, Q("0.278 mm")),
    Sketcher.Constraint("DistanceY", 3, 1, 3, 2, Q("0.214 mm")),
    Sketcher.Constraint("DistanceY", -1, 1, 1, 3, Q("1.495 mm")),
])
sketch6.setExpression("Constraints[71]", "Params.sketch6_radius")
sketch6.setExpression("Constraints[72]", "Params.sketch6_width")
sketch6.setExpression("Constraints[73]", "Params.sketch6_height")
pad3 = body3.newObject("PartDesign::Pad", "Pad002")
pad3.Profile = sketch6
pad3.setExpression("Length", "Params.pad3_length")
doc.recompute()

fillet = body3.newObject("PartDesign::Fillet", "Fillet")
fillet.Base = (pad3, edges_at(pad3, [
    (-1.55, -1.75, 1.595),
    (-1.55, -1.691, 1.354),
    (-1.55, 1.691, 1.354),
    (-1.55, 1.75, 1.595),
    (-1.55, 1.691, 1.836),
    (-1.55, 0, 1.895),
    (-1.55, -1.691, 1.836),
]))
fillet.setExpression("Radius", "Params.fillet_radius")
doc.recompute()

boolean2 = body3.newObject("PartDesign::Boolean", "Boolean001")
boolean2.Type = "Fuse"
boolean2.addObjects([body2])

doc.recompute()
